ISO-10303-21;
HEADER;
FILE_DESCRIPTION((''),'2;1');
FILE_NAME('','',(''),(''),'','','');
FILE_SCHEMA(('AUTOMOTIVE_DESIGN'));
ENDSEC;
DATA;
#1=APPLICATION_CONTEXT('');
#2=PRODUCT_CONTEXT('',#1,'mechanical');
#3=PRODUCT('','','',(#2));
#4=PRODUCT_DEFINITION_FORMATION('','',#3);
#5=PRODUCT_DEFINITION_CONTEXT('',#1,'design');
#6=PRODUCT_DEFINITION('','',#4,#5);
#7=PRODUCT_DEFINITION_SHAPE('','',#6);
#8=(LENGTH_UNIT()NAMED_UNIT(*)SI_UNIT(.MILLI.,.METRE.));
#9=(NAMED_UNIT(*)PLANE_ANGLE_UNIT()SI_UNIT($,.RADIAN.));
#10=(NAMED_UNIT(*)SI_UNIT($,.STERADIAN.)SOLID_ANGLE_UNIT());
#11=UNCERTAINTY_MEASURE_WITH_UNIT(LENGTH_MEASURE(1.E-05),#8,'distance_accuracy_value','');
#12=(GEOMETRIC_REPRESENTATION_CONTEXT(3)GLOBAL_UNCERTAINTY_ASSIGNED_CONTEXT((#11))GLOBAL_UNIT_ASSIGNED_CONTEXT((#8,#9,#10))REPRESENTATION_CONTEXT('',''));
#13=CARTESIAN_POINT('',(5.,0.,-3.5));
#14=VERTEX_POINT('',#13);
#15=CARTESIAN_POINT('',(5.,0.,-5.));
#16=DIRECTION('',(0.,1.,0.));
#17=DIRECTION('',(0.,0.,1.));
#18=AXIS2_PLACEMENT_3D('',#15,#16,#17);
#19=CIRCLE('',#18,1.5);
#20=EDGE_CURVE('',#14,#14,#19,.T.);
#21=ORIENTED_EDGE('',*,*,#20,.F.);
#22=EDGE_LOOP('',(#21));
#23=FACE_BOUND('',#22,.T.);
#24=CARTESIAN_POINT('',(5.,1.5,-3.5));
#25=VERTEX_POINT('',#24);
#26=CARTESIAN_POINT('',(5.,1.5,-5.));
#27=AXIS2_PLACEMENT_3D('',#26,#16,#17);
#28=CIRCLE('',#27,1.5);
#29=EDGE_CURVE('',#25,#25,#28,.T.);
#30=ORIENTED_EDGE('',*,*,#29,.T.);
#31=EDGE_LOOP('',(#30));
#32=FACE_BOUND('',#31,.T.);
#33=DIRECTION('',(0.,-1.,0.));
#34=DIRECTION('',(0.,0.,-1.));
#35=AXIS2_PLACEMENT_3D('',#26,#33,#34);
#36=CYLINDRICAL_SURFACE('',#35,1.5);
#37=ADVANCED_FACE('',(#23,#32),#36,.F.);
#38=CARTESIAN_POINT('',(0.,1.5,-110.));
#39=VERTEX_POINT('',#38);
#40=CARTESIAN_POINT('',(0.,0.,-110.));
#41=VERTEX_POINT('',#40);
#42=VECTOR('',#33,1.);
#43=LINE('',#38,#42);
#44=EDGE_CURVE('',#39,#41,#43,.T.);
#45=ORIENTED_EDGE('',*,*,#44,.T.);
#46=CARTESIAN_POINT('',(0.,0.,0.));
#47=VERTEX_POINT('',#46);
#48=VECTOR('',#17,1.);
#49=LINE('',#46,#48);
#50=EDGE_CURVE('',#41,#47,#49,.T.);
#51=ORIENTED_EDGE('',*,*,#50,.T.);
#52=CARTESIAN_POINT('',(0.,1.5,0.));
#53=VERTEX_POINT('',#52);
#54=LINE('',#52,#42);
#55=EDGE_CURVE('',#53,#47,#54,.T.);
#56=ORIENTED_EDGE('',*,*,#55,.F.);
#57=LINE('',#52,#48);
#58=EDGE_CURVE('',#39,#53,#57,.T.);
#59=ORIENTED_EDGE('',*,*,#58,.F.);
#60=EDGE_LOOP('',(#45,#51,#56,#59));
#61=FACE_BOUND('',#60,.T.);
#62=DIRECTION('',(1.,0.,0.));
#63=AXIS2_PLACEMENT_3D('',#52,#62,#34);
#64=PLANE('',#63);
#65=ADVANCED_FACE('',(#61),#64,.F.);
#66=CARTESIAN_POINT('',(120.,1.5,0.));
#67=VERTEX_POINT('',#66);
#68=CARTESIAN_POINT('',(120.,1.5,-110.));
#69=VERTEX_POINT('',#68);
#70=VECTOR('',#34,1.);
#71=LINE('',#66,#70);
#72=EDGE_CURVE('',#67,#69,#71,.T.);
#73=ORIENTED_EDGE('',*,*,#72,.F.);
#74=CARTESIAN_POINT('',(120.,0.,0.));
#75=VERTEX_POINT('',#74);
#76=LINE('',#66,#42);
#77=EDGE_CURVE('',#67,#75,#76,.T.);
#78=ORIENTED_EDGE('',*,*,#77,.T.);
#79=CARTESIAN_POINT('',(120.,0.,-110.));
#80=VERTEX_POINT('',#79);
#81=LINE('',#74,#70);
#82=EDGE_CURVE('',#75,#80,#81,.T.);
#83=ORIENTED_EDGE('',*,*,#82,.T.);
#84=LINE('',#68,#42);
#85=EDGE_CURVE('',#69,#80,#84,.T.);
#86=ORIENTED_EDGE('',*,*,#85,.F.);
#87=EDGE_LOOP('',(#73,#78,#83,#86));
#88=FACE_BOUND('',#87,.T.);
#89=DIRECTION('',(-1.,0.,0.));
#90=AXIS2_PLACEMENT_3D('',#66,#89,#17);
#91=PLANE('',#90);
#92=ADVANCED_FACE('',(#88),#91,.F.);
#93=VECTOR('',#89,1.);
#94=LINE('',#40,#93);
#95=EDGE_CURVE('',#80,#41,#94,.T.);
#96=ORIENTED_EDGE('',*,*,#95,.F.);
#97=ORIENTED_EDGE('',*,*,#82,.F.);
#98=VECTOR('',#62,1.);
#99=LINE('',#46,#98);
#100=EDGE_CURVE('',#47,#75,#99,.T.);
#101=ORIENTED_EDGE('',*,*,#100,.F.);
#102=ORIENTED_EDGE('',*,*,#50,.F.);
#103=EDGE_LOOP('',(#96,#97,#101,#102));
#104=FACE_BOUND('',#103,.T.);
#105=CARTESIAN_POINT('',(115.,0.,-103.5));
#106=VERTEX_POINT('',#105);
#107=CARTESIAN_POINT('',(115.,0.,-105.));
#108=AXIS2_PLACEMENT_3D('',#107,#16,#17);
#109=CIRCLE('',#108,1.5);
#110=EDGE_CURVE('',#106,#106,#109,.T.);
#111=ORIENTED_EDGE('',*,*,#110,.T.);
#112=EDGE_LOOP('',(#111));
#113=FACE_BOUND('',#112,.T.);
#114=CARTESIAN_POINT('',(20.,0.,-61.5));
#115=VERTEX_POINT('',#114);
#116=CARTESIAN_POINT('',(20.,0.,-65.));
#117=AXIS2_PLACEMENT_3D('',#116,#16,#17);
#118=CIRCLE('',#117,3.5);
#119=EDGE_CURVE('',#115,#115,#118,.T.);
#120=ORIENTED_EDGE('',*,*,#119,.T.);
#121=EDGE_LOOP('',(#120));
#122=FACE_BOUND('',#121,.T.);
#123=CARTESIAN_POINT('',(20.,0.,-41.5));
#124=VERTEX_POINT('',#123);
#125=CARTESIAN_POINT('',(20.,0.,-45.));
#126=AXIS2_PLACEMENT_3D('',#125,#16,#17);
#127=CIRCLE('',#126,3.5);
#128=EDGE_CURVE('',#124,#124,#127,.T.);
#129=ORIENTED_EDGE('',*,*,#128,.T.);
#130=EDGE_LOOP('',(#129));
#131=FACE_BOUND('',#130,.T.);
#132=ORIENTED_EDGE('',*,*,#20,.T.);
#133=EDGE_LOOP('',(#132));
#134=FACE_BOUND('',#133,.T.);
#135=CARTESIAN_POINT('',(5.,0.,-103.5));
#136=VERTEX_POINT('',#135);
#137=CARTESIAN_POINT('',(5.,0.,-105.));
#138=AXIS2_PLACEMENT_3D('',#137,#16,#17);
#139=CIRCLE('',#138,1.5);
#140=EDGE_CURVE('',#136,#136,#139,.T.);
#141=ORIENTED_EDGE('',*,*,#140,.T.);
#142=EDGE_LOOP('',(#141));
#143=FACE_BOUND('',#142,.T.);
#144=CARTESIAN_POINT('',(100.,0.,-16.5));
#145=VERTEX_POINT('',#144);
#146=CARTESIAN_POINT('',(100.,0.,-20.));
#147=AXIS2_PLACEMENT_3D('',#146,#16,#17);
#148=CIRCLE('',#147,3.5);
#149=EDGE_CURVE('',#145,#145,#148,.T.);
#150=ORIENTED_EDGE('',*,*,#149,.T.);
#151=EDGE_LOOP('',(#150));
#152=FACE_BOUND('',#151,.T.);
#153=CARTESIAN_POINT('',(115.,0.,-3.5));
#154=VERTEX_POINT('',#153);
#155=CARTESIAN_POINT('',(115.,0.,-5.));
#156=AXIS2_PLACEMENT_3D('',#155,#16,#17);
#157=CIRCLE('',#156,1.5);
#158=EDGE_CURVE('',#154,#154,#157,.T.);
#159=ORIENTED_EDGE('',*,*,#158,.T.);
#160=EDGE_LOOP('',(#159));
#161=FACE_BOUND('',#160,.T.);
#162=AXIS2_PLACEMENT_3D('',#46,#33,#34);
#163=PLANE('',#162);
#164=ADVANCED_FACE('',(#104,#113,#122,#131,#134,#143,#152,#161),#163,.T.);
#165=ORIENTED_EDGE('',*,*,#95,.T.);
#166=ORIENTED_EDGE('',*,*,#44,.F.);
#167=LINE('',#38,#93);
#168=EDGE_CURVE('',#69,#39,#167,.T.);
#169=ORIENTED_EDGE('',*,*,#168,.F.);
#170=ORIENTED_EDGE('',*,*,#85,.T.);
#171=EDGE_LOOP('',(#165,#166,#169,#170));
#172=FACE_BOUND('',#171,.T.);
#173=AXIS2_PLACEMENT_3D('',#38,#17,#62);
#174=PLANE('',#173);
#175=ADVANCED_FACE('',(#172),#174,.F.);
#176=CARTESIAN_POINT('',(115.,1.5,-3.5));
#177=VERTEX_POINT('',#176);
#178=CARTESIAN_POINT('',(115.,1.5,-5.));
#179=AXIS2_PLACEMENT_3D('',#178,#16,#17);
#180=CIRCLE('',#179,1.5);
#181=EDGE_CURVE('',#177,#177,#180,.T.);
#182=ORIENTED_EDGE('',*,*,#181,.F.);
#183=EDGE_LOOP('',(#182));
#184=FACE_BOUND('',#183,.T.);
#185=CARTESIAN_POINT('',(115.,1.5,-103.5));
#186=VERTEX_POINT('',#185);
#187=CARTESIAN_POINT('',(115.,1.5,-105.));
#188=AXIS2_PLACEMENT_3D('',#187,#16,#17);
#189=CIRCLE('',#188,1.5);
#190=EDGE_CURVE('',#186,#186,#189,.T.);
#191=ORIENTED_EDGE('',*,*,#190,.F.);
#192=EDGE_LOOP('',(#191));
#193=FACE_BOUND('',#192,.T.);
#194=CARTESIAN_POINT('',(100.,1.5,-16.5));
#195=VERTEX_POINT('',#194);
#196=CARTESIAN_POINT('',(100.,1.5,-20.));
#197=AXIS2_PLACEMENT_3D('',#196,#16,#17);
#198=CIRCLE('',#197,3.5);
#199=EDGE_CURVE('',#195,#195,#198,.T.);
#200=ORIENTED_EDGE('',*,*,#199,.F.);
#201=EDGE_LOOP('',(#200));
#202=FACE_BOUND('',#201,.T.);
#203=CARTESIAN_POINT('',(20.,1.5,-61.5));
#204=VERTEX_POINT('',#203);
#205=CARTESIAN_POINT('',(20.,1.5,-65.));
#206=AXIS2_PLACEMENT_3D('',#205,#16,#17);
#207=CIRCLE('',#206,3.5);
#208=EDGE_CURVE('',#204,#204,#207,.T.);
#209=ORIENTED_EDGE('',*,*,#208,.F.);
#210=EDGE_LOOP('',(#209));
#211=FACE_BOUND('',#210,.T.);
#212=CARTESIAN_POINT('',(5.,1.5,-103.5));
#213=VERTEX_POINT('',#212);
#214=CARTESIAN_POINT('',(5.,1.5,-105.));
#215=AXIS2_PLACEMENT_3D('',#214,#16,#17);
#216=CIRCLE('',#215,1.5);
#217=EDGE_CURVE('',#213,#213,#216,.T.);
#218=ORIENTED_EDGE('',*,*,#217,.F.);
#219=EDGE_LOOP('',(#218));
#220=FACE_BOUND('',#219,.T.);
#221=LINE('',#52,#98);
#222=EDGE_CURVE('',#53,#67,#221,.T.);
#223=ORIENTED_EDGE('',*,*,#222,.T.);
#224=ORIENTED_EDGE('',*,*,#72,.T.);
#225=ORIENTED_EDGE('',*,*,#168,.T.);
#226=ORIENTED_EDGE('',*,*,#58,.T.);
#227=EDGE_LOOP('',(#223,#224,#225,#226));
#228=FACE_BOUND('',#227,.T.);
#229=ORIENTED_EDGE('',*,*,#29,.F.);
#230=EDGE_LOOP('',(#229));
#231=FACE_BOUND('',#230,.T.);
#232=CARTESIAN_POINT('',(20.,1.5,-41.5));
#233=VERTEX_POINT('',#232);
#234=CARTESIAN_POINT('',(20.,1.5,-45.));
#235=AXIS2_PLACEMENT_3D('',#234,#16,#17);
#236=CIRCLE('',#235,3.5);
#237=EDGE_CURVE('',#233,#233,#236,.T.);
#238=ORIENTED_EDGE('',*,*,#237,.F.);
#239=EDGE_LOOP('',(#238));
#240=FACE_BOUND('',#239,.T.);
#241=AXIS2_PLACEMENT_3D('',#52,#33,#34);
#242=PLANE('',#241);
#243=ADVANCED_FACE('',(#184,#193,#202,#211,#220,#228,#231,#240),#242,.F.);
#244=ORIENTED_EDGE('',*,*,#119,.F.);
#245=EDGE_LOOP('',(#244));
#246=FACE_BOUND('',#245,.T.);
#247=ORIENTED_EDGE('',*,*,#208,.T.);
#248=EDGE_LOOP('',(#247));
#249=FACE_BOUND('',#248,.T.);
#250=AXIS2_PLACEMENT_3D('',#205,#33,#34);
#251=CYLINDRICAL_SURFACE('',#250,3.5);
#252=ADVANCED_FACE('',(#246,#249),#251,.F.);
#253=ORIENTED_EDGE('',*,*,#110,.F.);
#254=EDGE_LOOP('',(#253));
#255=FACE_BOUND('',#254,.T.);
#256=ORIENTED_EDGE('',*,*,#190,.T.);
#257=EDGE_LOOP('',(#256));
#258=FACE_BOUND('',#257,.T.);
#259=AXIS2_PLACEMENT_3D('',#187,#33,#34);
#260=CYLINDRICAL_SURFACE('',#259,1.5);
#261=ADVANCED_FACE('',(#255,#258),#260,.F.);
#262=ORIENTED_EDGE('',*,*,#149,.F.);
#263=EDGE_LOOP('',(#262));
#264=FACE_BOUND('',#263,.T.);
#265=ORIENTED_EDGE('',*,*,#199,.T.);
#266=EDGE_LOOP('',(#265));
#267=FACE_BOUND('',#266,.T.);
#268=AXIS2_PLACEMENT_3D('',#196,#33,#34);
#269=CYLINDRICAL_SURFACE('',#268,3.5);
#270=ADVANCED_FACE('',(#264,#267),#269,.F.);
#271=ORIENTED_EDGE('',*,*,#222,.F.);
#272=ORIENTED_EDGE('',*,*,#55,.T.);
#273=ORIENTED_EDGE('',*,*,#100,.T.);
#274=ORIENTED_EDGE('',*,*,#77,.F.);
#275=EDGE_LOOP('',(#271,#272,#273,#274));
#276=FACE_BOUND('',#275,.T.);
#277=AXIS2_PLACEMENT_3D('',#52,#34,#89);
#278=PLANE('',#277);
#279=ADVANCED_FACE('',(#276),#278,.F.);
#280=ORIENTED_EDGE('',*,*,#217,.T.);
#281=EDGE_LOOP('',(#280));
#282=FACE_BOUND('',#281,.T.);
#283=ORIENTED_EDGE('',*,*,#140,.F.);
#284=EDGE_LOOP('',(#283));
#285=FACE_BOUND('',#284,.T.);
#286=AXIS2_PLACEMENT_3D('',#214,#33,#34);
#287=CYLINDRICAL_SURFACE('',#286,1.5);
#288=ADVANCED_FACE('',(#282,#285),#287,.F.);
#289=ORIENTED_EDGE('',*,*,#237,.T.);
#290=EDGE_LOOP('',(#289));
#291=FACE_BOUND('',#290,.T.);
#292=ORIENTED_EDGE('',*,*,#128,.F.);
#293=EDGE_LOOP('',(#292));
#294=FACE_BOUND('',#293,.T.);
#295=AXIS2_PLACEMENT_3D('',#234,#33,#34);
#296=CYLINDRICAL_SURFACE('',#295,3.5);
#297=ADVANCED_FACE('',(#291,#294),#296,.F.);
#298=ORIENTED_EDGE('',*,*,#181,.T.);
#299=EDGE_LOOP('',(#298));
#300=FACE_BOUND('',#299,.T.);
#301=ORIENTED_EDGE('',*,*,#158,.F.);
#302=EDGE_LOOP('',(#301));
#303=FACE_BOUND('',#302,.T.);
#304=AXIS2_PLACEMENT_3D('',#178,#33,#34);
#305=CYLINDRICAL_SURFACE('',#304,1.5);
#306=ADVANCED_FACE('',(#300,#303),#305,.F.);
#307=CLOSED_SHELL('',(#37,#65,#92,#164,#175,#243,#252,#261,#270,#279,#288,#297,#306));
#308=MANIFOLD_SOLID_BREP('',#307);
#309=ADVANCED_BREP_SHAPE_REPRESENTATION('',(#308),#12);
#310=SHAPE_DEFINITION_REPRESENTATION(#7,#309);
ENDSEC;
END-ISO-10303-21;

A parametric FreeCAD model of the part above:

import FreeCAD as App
import Part
import Sketcher
Q = App.Units.Quantity


def add_polygon(sketch, points):
    """Adds a closed chain of lines whose ends are joined by coincident constraints."""
    first, n = sketch.GeometryCount, len(points)
    for a, b in zip(points, points[1:] + points[:1]):
        sketch.addGeometry(Part.LineSegment(App.Vector(*a, 0), App.Vector(*b, 0)), False)
    for i in range(n):
        sketch.addConstraint(Sketcher.Constraint("Coincident", first + i, 2, first + (i + 1) % n, 1))

doc = App.newDocument("Part")
params = doc.addObject("Spreadsheet::Sheet", "Params")
for row, (alias, value) in enumerate([
    ("sketch1_diameter", "3 mm"),
    ("sketch1_diameter2", "7 mm"),
    ("sketch1_width", "120 mm"),
    ("sketch1_height", "110 mm"),
    ("pad1_length", "1.5 mm"),
], start=1):
    params.set(f"A{row}", alias)
    params.set(f"B{row}", "=" + value)
    params.setAlias(f"B{row}", alias)

body = doc.addObject("PartDesign::Body", "Body")

sketch1 = body.newObject("Sketcher::SketchObject", "Sketch")
sketch1.AttachmentSupport = (doc.getObject("XZ_Plane"), [""])
sketch1.MapMode = "FlatFace"
add_polygon(sketch1, [(0, -110), (0, 0), (120, 0), (120, -110)])
sketch1.addGeometry(Part.Circle(App.Vector(5, -5, 0), App.Vector(0, 0, 1), 1.5), False)
sketch1.addGeometry(Part.Circle(App.Vector(20, -45, 0), App.Vector(0, 0, 1), 3.5), False)
sketch1.addGeometry(Part.Circle(App.Vector(115, -5, 0), App.Vector(0, 0, 1), 1.5), False)
sketch1.addGeometry(Part.Circle(App.Vector(100, -20, 0), App.Vector(0, 0, 1), 3.5), False)
sketch1.addGeometry(Part.Circle(App.Vector(20, -65, 0), App.Vector(0, 0, 1), 3.5), False)
sketch1.addGeometry(Part.Circle(App.Vector(5, -105, 0), App.Vector(0, 0, 1), 1.5), False)
sketch1.addGeometry(Part.Circle(App.Vector(115, -105, 0), App.Vector(0, 0, 1), 1.5), False)
sketch1.addConstraint([
    Sketcher.Constraint("Vertical", 0),
    Sketcher.Constraint("Horizontal", 1),
    Sketcher.Constraint("Vertical", 2),
    Sketcher.Constraint("Horizontal", 3),
    Sketcher.Constraint("Coincident", 0, 2, -1, 1),
    Sketcher.Constraint("Equal", 4, 6),
    Sketcher.Constraint("Equal", 5, 7),
    Sketcher.Constraint("Equal", 7, 8),
    Sketcher.Constraint("Equal", 6, 9),
    Sketcher.Constraint("Equal", 9, 10),
    Sketcher.Constraint("Horizontal", 4, 3, 6, 3),
    Sketcher.Constraint("Horizontal", 9, 3, 10, 3),
    Sketcher.Constraint("Vertical", 5, 3, 8, 3),
    Sketcher.Constraint("Vertical", 4, 3, 9, 3),
    Sketcher.Constraint("Vertical", 6, 3, 10, 3),
    Sketcher.Constraint("Diameter", 4, Q("3 mm")),
    Sketcher.Constraint("Diameter", 5, Q("7 mm")),
    Sketcher.Constraint("DistanceX", 1, 1, 1, 2, Q("120 mm")),
    Sketcher.Constraint("DistanceY", 0, 1, 0, 2, Q("110 mm")),
    Sketcher.Constraint("DistanceX", -1, 1, 4, 3, Q("5 mm")),
    Sketcher.Constraint("DistanceY", 4, 3, -1, 1, Q("5 mm")),
    Sketcher.Constraint("DistanceX", -1, 1, 5, 3, Q("20 mm")),
    Sketcher.Constraint("DistanceY", 5, 3, -1, 1, Q("45 mm")),
    Sketcher.Constraint("DistanceX", -1, 1, 6, 3, Q("115 mm")),
    Sketcher.Constraint("DistanceX", -1, 1, 7, 3, Q("100 mm")),
    Sketcher.Constraint("DistanceY", 7, 3, -1, 1, Q("20 mm")),
    Sketcher.Constraint("DistanceY", 8, 3, -1, 1, Q("65 mm")),
    Sketcher.Constraint("DistanceY", 9, 3, -1, 1, Q("105 mm")),
])
sketch1.setExpression("Constraints[19]", "Params.sketch1_diameter")
sketch1.setExpression("Constraints[20]", "Params.sketch1_diameter2")
sketch1.setExpression("Constraints[21]", "Params.sketch1_width")
sketch1.setExpression("Constraints[22]", "Params.sketch1_height")
pad1 = body.newObject("PartDesign::Pad", "Pad")
pad1.Profile = sketch1
pad1.setExpression("Length", "Params.pad1_length")
pad1.Reversed = True

doc.recompute()
